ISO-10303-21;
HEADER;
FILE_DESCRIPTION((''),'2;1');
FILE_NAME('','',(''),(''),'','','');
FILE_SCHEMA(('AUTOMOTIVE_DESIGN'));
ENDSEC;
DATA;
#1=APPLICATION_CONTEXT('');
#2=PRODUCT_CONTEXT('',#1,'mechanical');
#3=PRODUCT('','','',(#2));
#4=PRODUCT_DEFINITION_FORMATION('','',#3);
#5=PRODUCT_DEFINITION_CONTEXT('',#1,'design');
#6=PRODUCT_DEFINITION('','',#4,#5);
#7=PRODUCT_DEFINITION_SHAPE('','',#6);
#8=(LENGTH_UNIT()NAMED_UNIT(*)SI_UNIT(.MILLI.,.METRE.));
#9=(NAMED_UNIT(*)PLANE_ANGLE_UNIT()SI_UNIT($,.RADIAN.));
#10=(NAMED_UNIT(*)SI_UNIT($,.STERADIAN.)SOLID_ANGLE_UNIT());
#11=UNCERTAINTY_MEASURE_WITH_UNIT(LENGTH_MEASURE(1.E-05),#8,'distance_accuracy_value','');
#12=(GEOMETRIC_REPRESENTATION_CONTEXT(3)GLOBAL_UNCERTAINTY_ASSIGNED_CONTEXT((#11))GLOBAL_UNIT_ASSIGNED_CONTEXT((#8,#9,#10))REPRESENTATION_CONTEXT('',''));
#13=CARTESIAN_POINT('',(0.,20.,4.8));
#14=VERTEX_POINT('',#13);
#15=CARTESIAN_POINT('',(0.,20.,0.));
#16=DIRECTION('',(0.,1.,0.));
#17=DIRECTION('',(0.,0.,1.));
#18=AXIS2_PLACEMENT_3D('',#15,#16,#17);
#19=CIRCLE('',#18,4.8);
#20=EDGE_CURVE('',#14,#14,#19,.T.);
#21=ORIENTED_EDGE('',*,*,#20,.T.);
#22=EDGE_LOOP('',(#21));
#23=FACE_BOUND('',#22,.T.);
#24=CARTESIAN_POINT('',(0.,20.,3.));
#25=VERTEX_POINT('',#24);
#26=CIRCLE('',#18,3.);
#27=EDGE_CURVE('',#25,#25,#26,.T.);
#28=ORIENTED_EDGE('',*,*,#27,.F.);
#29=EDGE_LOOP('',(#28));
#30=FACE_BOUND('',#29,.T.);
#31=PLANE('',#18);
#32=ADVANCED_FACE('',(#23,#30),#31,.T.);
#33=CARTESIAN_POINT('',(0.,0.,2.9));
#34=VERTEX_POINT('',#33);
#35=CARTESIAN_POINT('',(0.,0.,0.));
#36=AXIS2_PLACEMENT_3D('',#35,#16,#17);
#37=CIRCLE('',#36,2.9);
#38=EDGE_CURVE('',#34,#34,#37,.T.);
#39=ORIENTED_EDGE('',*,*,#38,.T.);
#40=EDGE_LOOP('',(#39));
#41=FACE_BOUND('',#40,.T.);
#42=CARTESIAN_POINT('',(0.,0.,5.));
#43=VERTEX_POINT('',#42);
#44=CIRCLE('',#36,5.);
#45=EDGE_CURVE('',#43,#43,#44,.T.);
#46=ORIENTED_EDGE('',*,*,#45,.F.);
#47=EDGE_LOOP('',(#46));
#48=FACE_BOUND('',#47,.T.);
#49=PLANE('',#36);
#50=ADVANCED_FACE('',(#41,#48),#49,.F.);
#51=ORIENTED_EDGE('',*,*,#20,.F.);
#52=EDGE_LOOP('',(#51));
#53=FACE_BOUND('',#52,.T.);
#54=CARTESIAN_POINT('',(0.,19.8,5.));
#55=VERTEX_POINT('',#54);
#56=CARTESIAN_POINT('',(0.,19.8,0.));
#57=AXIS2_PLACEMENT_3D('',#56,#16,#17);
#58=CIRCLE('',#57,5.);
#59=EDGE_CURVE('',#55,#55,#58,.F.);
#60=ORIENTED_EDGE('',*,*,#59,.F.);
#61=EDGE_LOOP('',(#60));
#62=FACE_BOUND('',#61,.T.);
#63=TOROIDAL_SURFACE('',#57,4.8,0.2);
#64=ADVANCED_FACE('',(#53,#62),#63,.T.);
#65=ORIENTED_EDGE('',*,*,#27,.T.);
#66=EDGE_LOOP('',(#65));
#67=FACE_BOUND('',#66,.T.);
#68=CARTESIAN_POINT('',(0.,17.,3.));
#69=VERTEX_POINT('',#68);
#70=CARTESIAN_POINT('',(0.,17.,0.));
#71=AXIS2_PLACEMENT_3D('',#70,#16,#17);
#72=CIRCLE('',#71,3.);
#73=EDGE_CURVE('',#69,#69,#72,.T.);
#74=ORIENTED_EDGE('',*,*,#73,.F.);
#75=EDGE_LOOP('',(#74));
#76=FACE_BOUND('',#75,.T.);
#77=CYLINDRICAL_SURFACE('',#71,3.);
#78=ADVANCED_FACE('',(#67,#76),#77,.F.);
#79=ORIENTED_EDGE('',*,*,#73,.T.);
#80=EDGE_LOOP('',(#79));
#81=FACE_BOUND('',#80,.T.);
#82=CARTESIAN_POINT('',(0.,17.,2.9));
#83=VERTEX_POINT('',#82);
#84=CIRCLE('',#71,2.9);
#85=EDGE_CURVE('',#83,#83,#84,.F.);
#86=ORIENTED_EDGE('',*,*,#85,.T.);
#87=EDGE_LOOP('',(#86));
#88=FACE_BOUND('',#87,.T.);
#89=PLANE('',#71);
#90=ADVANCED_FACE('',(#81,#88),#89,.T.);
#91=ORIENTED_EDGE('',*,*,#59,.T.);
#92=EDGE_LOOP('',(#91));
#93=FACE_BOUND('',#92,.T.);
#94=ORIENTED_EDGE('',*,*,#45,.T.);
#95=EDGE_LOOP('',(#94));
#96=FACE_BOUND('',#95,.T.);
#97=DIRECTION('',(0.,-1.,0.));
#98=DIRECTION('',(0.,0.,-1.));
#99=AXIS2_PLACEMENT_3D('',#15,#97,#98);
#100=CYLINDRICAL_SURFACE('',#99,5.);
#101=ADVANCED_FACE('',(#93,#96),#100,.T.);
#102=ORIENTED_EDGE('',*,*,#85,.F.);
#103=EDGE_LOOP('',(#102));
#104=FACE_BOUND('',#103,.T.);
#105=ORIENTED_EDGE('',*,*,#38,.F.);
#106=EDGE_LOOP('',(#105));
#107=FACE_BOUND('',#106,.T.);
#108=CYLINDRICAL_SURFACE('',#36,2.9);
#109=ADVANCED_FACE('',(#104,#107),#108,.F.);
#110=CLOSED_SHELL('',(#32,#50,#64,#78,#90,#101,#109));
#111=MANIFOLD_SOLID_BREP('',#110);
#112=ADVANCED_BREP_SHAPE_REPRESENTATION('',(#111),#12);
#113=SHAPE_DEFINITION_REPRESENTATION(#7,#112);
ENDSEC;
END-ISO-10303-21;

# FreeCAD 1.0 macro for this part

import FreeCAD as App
import Part
import Sketcher

V = App.Vector


def edges_at(feature, points):
    """Names of the edges that pass closest to the given points."""
    edges = feature.Shape.Edges
    near = lambda p: min(range(len(edges)), key=lambda i: edges[i].distToShape(Part.Vertex(*p))[0])
    return sorted({f"Edge{near(p) + 1}" for p in points})

doc = App.newDocument("Part")
params = doc.addObject("Spreadsheet::Sheet", "Params")
for row, (alias, value) in enumerate([
    ("sketch1_diameter", "10 mm"),
    ("pad1_length", "20 mm"),
    ("sketch2_diameter", "5.8 mm"),
    ("pocket1_length", "20 mm"),
    ("sketch3_diameter", "6 mm"),
    ("pocket2_length", "3 mm"),
    ("fillet_radius", "0.2 mm"),
], start=1):
    params.set(f"A{row}", alias)
    params.set(f"B{row}", "=" + value)
    params.setAlias(f"B{row}", alias)

body = doc.addObject("PartDesign::Body", "Body")

sketch1 = body.newObject("Sketcher::SketchObject", "Sketch")
sketch1.AttachmentSupport = (doc.getObject("XZ_Plane"), [""])
sketch1.MapMode = "FlatFace"
sketch1.addGeometry(Part.Circle(V(0, 0, 0), V(0, 0, 1), 5), False)
sketch1.addConstraint(Sketcher.Constraint("Coincident", 0, 3, -1, 1))
sketch1.addConstraint(Sketcher.Constraint("Diameter", 0, 10.0))
sketch1.setExpression("Constraints[1]", "Params.sketch1_diameter")
pad1 = body.newObject("PartDesign::Pad", "Pad")
pad1.Profile = sketch1
pad1.setExpression("Length", "Params.pad1_length")
pad1.Reversed = True

sketch2 = body.newObject("Sketcher::SketchObject", "Sketch001")
sketch2.AttachmentSupport = (doc.getObject("XZ_Plane"), [""])
sketch2.MapMode = "FlatFace"
sketch2.AttachmentOffset = App.Placement(V(0, 0, -20), App.Rotation())
sketch2.addGeometry(Part.Circle(V(0, 0, 0), V(0, 0, 1), 2.9), False)
sketch2.addConstraint(Sketcher.Constraint("Coincident", 0, 3, -1, 1))
sketch2.addConstraint(Sketcher.Constraint("Diameter", 0, 5.8))
sketch2.setExpression("Constraints[1]", "Params.sketch2_diameter")
pocket1 = body.newObject("PartDesign::Pocket", "Pocket")
pocket1.Profile = sketch2
pocket1.setExpression("Length", "Params.pocket1_length")
pocket1.Reversed = True

sketch3 = body.newObject("Sketcher::SketchObject", "Sketch002")
sketch3.AttachmentSupport = (doc.getObject("XZ_Plane"), [""])
sketch3.MapMode = "FlatFace"
sketch3.AttachmentOffset = App.Placement(V(0, 0, -20), App.Rotation())
sketch3.addGeometry(Part.Circle(V(0, 0, 0), V(0, 0, 1), 3), False)
sketch3.addConstraint(Sketcher.Constraint("Coincident", 0, 3, -1, 1))
sketch3.addConstraint(Sketcher.Constraint("Diameter", 0, 6.0))
sketch3.setExpression("Constraints[1]", "Params.sketch3_diameter")
pocket2 = body.newObject("PartDesign::Pocket", "Pocket001")
pocket2.Profile = sketch3
pocket2.setExpression("Length", "Params.pocket2_length")
pocket2.Reversed = True
doc.recompute()

fillet = body.newObject("PartDesign::Fillet", "Fillet")
fillet.Base = (pocket2, edges_at(pocket2, [(0, 20, -5)]))
fillet.setExpression("Radius", "Params.fillet_radius")

doc.recompute()
